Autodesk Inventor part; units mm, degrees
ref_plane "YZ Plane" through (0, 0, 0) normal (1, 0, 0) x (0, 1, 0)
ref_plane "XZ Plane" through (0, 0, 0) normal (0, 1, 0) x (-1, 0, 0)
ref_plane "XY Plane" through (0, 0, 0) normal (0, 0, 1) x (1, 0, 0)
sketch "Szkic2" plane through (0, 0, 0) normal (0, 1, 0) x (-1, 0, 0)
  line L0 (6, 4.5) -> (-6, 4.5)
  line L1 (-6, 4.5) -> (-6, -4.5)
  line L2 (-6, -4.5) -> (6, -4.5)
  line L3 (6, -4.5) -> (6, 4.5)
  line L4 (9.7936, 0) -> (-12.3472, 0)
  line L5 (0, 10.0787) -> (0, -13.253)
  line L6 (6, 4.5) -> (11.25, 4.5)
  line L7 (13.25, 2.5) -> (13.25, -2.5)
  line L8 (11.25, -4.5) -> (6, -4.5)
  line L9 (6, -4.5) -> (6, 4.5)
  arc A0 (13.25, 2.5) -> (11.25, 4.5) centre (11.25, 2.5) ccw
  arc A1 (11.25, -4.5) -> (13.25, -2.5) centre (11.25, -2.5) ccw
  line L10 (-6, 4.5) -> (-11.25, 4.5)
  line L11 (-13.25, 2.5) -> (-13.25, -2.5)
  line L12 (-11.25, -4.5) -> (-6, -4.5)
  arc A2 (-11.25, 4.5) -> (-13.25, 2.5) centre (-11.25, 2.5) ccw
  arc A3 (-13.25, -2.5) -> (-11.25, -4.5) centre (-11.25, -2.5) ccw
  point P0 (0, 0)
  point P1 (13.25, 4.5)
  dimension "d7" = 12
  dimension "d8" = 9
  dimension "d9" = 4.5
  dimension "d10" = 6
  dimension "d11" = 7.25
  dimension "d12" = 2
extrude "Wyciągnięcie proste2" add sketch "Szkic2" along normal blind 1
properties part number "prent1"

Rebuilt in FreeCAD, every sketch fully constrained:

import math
import FreeCAD as App
import Part
import Sketcher

V = App.Vector
Q = App.Units.Quantity

doc = App.newDocument("Part")
params = doc.addObject("Spreadsheet::Sheet", "Params")
for row, (alias, value) in enumerate([
    ("sketch1_radius", "2 mm"),
    ("sketch1_width", "22.5 mm"),
    ("pad1_length", "1 mm"),
], start=1):
    params.set(f"A{row}", alias)
    params.set(f"B{row}", "=" + value)
    params.setAlias(f"B{row}", alias)

body = doc.addObject("PartDesign::Body", "Body")

# Sketch on XZ plane
sketch1 = doc.addObject("Sketcher::SketchObject", "Sketch")
body.addObject(sketch1)
sketch1.AttachmentSupport = (doc.XZ_Plane, [""])
sketch1.MapMode = "FlatFace"
sketch1.addGeometry([
    Part.ArcOfCircle(Part.Circle(V(11.2, 2.5, 0), V(0, 0, 1), 2), math.radians(0), math.radians(90)),  # 0
    Part.LineSegment(V(13.2, 2.5, 0), V(13.2, -2.5, 0)),  # 1
    Part.ArcOfCircle(Part.Circle(V(11.2, -2.5, 0), V(0, 0, 1), 2), math.radians(-90), math.radians(0)),  # 2
    Part.LineSegment(V(11.2, -4.5, 0), V(-11.2, -4.5, 0)),  # 3
    Part.ArcOfCircle(Part.Circle(V(-11.2, -2.5, 0), V(0, 0, 1), 2), math.radians(180), math.radians(270)),  # 4
    Part.LineSegment(V(-13.2, -2.5, 0), V(-13.2, 2.5, 0)),  # 5
    Part.ArcOfCircle(Part.Circle(V(-11.2, 2.5, 0), V(0, 0, 1), 2), math.radians(90), math.radians(180)),  # 6
    Part.LineSegment(V(-11.2, 4.5, 0), V(11.2, 4.5, 0)),  # 7
], False)
sketch1.addConstraint([
    Sketcher.Constraint("Tangent", 0, 1, 1, 1),
    Sketcher.Constraint("Tangent", 1, 2, 2, 2),
    Sketcher.Constraint("Tangent", 2, 1, 3, 1),
    Sketcher.Constraint("Tangent", 3, 2, 4, 2),
    Sketcher.Constraint("Tangent", 4, 1, 5, 1),
    Sketcher.Constraint("Tangent", 5, 2, 6, 2),
    Sketcher.Constraint("Tangent", 6, 1, 7, 1),
    Sketcher.Constraint("Tangent", 7, 2, 0, 2),
    Sketcher.Constraint("Vertical", 1),
    Sketcher.Constraint("Horizontal", 3),
    Sketcher.Constraint("Vertical", 5),
    Sketcher.Constraint("Horizontal", 7),
    Sketcher.Constraint("Equal", 0, 2),
    Sketcher.Constraint("Equal", 2, 4),
    Sketcher.Constraint("Equal", 4, 6),
    Sketcher.Constraint("Symmetric", 0, 3, 4, 3, -1, 1),
    Sketcher.Constraint("Radius", 0, Q("2 mm")),
    Sketcher.Constraint("DistanceY", 3, 2, 6, 1, Q("9 mm")),
    Sketcher.Constraint("DistanceX", 3, 2, 3, 1, Q("22.5 mm")),
])
sketch1.setExpression("Constraints[16]", "Params.sketch1_radius")
sketch1.setExpression("Constraints[18]", "Params.sketch1_width")
pad1 = doc.addObject("PartDesign::Pad", "Pad")
body.addObject(pad1)
pad1.Profile = sketch1
pad1.setExpression("Length", "Params.pad1_length")
pad1.Reversed = True

doc.recompute()
